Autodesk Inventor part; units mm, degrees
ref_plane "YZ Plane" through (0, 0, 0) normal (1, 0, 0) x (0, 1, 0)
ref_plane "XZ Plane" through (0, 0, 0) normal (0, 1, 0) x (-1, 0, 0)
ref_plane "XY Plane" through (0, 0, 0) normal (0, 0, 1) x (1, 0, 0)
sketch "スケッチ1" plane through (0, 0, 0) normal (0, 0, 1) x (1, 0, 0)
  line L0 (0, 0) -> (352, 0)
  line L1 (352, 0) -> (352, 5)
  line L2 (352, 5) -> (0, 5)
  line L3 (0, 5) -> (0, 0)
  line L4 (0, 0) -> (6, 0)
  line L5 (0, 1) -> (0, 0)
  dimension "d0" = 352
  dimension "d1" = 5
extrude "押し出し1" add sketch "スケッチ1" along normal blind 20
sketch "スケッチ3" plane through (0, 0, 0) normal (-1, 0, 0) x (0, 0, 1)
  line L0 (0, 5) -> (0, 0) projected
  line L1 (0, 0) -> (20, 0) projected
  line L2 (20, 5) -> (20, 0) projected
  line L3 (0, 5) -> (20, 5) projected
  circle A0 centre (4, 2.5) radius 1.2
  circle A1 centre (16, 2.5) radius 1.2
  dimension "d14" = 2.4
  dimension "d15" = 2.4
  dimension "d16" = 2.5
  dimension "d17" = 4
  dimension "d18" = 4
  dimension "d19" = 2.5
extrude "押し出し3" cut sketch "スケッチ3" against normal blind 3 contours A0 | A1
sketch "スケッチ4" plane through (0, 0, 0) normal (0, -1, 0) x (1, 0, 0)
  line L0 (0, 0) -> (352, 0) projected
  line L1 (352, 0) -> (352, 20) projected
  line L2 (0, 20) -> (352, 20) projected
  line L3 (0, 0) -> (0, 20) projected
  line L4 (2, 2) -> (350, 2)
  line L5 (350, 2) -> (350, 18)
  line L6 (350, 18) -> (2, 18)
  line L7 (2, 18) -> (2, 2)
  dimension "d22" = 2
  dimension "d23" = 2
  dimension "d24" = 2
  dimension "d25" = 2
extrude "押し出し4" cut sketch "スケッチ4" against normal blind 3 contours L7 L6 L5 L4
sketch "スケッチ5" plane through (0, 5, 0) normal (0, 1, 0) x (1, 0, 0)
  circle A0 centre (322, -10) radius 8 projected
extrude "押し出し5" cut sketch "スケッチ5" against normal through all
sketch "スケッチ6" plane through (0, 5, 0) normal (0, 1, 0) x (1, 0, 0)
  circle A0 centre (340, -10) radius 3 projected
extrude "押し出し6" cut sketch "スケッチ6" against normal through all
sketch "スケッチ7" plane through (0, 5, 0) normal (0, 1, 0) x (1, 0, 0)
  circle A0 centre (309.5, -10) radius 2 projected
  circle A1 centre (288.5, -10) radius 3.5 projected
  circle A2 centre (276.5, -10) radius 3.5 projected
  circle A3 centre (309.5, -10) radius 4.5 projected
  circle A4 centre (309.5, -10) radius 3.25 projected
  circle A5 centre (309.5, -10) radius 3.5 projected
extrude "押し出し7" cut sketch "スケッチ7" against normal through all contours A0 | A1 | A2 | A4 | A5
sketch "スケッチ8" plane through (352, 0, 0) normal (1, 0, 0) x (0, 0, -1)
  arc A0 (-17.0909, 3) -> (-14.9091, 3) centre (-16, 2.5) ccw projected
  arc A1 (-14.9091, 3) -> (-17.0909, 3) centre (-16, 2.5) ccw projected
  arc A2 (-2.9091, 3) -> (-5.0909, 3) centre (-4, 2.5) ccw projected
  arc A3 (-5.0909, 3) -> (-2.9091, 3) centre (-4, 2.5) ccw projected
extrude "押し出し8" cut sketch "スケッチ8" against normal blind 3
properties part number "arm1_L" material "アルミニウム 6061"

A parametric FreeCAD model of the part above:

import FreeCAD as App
import Part
import Sketcher

V = App.Vector
Q = App.Units.Quantity

doc = App.newDocument("Part")
body = doc.addObject("PartDesign::Body", "Body")

sketch1 = body.newObject("Sketcher::SketchObject", "Sketch")
sketch1.AttachmentSupport = (doc.getObject("XY_Plane"), [""])
sketch1.MapMode = "FlatFace"
sketch1.addGeometry([
    Part.LineSegment(V(0, 5, 0), V(0, 0, 0)),
    Part.LineSegment(V(0, 0, 0), V(352, 0, 0)),
    Part.LineSegment(V(352, 0, 0), V(352, 5, 0)),
    Part.LineSegment(V(352, 5, 0), V(0, 5, 0)),
], False)
sketch1.addConstraint([
    Sketcher.Constraint("Coincident", 0, 2, 1, 1),
    Sketcher.Constraint("Coincident", 1, 2, 2, 1),
    Sketcher.Constraint("Coincident", 2, 2, 3, 1),
    Sketcher.Constraint("Coincident", 3, 2, 0, 1),
    Sketcher.Constraint("Vertical", 0),
    Sketcher.Constraint("Horizontal", 1),
    Sketcher.Constraint("Vertical", 2),
    Sketcher.Constraint("Horizontal", 3),
    Sketcher.Constraint("Coincident", 0, 2, -1, 1),
    Sketcher.Constraint("DistanceX", 1, 1, 1, 2, Q("352 mm")),
    Sketcher.Constraint("DistanceY", 0, 2, 0, 1, Q("5 mm")),
])
pad1 = body.newObject("PartDesign::Pad", "Pad")
pad1.Profile = sketch1
pad1.Length = 20

sketch2 = body.newObject("Sketcher::SketchObject", "Sketch001")
sketch2.AttachmentSupport = (doc.getObject("YZ_Plane"), [""])
sketch2.MapMode = "FlatFace"
sketch2.addGeometry([
    Part.Circle(V(2.5, 4, 0), V(0, 0, 1), 1.2),
    Part.Circle(V(2.5, 16, 0), V(0, 0, 1), 1.2),
], False)
sketch2.addConstraint([
    Sketcher.Constraint("Equal", 0, 1),
    Sketcher.Constraint("Vertical", 0, 3, 1, 3),
    Sketcher.Constraint("Diameter", 0, Q("2.4 mm")),
    Sketcher.Constraint("DistanceY", -1, 1, 0, 3, Q("4 mm")),
    Sketcher.Constraint("DistanceX", -1, 1, 0, 3, Q("2.5 mm")),
    Sketcher.Constraint("DistanceY", -1, 1, 1, 3, Q("16 mm")),
])
pocket1 = body.newObject("PartDesign::Pocket", "Pocket")
pocket1.Profile = sketch2
pocket1.Length = 3
pocket1.Reversed = True

sketch3 = body.newObject("Sketcher::SketchObject", "Sketch002")
sketch3.AttachmentSupport = (doc.getObject("XZ_Plane"), [""])
sketch3.MapMode = "FlatFace"
sketch3.addGeometry([
    Part.LineSegment(V(2, 18, 0), V(2, 2, 0)),
    Part.LineSegment(V(2, 2, 0), V(350, 2, 0)),
    Part.LineSegment(V(350, 2, 0), V(350, 18, 0)),
    Part.LineSegment(V(350, 18, 0), V(2, 18, 0)),
], False)
sketch3.addConstraint([
    Sketcher.Constraint("Coincident", 0, 2, 1, 1),
    Sketcher.Constraint("Coincident", 1, 2, 2, 1),
    Sketcher.Constraint("Coincident", 2, 2, 3, 1),
    Sketcher.Constraint("Coincident", 3, 2, 0, 1),
    Sketcher.Constraint("Vertical", 0),
    Sketcher.Constraint("Horizontal", 1),
    Sketcher.Constraint("Vertical", 2),
    Sketcher.Constraint("Horizontal", 3),
    Sketcher.Constraint("DistanceX", -1, 1, 0, 2, Q("2 mm")),
    Sketcher.Constraint("DistanceY", -1, 1, 0, 2, Q("2 mm")),
    Sketcher.Constraint("DistanceX", 1, 1, 1, 2, Q("348 mm")),
    Sketcher.Constraint("DistanceY", 0, 2, 0, 1, Q("16 mm")),
])
pocket2 = body.newObject("PartDesign::Pocket", "Pocket001")
pocket2.Profile = sketch3
pocket2.Length = 3

sketch4 = body.newObject("Sketcher::SketchObject", "Sketch003")
sketch4.AttachmentSupport = (doc.getObject("XZ_Plane"), [""])
sketch4.MapMode = "FlatFace"
sketch4.AttachmentOffset = App.Placement(V(0, 0, -5), App.Rotation())
sketch4.addGeometry(Part.Circle(V(322, 10, 0), V(0, 0, 1), 8), False)
sketch4.addConstraint([
    Sketcher.Constraint("Diameter", 0, Q("16 mm")),
    Sketcher.Constraint("DistanceX", -1, 1, 0, 3, Q("322 mm")),
    Sketcher.Constraint("DistanceY", -1, 1, 0, 3, Q("10 mm")),
])
pocket3 = body.newObject("PartDesign::Pocket", "Pocket002")
pocket3.Profile = sketch4
pocket3.Type = "ThroughAll"
pocket3.Reversed = True

sketch5 = body.newObject("Sketcher::SketchObject", "Sketch004")
sketch5.AttachmentSupport = (doc.getObject("XZ_Plane"), [""])
sketch5.MapMode = "FlatFace"
sketch5.AttachmentOffset = App.Placement(V(0, 0, -5), App.Rotation())
sketch5.addGeometry(Part.Circle(V(340, 10, 0), V(0, 0, 1), 3), False)
sketch5.addConstraint([
    Sketcher.Constraint("Diameter", 0, Q("6 mm")),
    Sketcher.Constraint("DistanceX", -1, 1, 0, 3, Q("340 mm")),
    Sketcher.Constraint("DistanceY", -1, 1, 0, 3, Q("10 mm")),
])
pocket4 = body.newObject("PartDesign::Pocket", "Pocket003")
pocket4.Profile = sketch5
pocket4.Type = "ThroughAll"
pocket4.Reversed = True

sketch6 = body.newObject("Sketcher::SketchObject", "Sketch005")
sketch6.AttachmentSupport = (doc.getObject("XZ_Plane"), [""])
sketch6.MapMode = "FlatFace"
sketch6.AttachmentOffset = App.Placement(V(0, 0, -5), App.Rotation())
sketch6.addGeometry([
    Part.Circle(V(309.5, 10, 0), V(0, 0, 1), 3.5),
    Part.Circle(V(288.5, 10, 0), V(0, 0, 1), 3.5),
    Part.Circle(V(276.5, 10, 0), V(0, 0, 1), 3.5),
], False)
sketch6.addConstraint([
    Sketcher.Constraint("Equal", 0, 1),
    Sketcher.Constraint("Equal", 1, 2),
    Sketcher.Constraint("Horizontal", 0, 3, 1, 3),
    Sketcher.Constraint("Horizontal", 1, 3, 2, 3),
    Sketcher.Constraint("Diameter", 0, Q("7 mm")),
    Sketcher.Constraint("DistanceY", -1, 1, 0, 3, Q("10 mm")),
    Sketcher.Constraint("DistanceX", 1, 3, 0, 3, Q("21 mm")),
    Sketcher.Constraint("DistanceX", 2, 3, 1, 3, Q("12 mm")),
    Sketcher.Constraint("DistanceX", -1, 1, 0, 3, Q("309.5 mm")),
])
pocket5 = body.newObject("PartDesign::Pocket", "Pocket004")
pocket5.Profile = sketch6
pocket5.Type = "ThroughAll"
pocket5.Reversed = True

sketch7 = body.newObject("Sketcher::SketchObject", "Sketch006")
sketch7.AttachmentSupport = (doc.getObject("YZ_Plane"), [""])
sketch7.MapMode = "FlatFace"
sketch7.AttachmentOffset = App.Placement(V(0, 0, 352), App.Rotation())
sketch7.addGeometry([
    Part.Circle(V(2.5, 16, 0), V(0, 0, 1), 1.2),
    Part.Circle(V(2.5, 4, 0), V(0, 0, 1), 1.2),
], False)
sketch7.addConstraint([
    Sketcher.Constraint("Equal", 0, 1),
    Sketcher.Constraint("Vertical", 0, 3, 1, 3),
    Sketcher.Constraint("Diameter", 0, Q("2.4 mm")),
    Sketcher.Constraint("DistanceY", -1, 1, 0, 3, Q("16 mm")),
    Sketcher.Constraint("DistanceY", -1, 1, 1, 3, Q("4 mm")),
    Sketcher.Constraint("DistanceX", -1, 1, 0, 3, Q("2.5 mm")),
])
pocket6 = body.newObject("PartDesign::Pocket", "Pocket005")
pocket6.Profile = sketch7
pocket6.Length = 3

doc.recompute()
